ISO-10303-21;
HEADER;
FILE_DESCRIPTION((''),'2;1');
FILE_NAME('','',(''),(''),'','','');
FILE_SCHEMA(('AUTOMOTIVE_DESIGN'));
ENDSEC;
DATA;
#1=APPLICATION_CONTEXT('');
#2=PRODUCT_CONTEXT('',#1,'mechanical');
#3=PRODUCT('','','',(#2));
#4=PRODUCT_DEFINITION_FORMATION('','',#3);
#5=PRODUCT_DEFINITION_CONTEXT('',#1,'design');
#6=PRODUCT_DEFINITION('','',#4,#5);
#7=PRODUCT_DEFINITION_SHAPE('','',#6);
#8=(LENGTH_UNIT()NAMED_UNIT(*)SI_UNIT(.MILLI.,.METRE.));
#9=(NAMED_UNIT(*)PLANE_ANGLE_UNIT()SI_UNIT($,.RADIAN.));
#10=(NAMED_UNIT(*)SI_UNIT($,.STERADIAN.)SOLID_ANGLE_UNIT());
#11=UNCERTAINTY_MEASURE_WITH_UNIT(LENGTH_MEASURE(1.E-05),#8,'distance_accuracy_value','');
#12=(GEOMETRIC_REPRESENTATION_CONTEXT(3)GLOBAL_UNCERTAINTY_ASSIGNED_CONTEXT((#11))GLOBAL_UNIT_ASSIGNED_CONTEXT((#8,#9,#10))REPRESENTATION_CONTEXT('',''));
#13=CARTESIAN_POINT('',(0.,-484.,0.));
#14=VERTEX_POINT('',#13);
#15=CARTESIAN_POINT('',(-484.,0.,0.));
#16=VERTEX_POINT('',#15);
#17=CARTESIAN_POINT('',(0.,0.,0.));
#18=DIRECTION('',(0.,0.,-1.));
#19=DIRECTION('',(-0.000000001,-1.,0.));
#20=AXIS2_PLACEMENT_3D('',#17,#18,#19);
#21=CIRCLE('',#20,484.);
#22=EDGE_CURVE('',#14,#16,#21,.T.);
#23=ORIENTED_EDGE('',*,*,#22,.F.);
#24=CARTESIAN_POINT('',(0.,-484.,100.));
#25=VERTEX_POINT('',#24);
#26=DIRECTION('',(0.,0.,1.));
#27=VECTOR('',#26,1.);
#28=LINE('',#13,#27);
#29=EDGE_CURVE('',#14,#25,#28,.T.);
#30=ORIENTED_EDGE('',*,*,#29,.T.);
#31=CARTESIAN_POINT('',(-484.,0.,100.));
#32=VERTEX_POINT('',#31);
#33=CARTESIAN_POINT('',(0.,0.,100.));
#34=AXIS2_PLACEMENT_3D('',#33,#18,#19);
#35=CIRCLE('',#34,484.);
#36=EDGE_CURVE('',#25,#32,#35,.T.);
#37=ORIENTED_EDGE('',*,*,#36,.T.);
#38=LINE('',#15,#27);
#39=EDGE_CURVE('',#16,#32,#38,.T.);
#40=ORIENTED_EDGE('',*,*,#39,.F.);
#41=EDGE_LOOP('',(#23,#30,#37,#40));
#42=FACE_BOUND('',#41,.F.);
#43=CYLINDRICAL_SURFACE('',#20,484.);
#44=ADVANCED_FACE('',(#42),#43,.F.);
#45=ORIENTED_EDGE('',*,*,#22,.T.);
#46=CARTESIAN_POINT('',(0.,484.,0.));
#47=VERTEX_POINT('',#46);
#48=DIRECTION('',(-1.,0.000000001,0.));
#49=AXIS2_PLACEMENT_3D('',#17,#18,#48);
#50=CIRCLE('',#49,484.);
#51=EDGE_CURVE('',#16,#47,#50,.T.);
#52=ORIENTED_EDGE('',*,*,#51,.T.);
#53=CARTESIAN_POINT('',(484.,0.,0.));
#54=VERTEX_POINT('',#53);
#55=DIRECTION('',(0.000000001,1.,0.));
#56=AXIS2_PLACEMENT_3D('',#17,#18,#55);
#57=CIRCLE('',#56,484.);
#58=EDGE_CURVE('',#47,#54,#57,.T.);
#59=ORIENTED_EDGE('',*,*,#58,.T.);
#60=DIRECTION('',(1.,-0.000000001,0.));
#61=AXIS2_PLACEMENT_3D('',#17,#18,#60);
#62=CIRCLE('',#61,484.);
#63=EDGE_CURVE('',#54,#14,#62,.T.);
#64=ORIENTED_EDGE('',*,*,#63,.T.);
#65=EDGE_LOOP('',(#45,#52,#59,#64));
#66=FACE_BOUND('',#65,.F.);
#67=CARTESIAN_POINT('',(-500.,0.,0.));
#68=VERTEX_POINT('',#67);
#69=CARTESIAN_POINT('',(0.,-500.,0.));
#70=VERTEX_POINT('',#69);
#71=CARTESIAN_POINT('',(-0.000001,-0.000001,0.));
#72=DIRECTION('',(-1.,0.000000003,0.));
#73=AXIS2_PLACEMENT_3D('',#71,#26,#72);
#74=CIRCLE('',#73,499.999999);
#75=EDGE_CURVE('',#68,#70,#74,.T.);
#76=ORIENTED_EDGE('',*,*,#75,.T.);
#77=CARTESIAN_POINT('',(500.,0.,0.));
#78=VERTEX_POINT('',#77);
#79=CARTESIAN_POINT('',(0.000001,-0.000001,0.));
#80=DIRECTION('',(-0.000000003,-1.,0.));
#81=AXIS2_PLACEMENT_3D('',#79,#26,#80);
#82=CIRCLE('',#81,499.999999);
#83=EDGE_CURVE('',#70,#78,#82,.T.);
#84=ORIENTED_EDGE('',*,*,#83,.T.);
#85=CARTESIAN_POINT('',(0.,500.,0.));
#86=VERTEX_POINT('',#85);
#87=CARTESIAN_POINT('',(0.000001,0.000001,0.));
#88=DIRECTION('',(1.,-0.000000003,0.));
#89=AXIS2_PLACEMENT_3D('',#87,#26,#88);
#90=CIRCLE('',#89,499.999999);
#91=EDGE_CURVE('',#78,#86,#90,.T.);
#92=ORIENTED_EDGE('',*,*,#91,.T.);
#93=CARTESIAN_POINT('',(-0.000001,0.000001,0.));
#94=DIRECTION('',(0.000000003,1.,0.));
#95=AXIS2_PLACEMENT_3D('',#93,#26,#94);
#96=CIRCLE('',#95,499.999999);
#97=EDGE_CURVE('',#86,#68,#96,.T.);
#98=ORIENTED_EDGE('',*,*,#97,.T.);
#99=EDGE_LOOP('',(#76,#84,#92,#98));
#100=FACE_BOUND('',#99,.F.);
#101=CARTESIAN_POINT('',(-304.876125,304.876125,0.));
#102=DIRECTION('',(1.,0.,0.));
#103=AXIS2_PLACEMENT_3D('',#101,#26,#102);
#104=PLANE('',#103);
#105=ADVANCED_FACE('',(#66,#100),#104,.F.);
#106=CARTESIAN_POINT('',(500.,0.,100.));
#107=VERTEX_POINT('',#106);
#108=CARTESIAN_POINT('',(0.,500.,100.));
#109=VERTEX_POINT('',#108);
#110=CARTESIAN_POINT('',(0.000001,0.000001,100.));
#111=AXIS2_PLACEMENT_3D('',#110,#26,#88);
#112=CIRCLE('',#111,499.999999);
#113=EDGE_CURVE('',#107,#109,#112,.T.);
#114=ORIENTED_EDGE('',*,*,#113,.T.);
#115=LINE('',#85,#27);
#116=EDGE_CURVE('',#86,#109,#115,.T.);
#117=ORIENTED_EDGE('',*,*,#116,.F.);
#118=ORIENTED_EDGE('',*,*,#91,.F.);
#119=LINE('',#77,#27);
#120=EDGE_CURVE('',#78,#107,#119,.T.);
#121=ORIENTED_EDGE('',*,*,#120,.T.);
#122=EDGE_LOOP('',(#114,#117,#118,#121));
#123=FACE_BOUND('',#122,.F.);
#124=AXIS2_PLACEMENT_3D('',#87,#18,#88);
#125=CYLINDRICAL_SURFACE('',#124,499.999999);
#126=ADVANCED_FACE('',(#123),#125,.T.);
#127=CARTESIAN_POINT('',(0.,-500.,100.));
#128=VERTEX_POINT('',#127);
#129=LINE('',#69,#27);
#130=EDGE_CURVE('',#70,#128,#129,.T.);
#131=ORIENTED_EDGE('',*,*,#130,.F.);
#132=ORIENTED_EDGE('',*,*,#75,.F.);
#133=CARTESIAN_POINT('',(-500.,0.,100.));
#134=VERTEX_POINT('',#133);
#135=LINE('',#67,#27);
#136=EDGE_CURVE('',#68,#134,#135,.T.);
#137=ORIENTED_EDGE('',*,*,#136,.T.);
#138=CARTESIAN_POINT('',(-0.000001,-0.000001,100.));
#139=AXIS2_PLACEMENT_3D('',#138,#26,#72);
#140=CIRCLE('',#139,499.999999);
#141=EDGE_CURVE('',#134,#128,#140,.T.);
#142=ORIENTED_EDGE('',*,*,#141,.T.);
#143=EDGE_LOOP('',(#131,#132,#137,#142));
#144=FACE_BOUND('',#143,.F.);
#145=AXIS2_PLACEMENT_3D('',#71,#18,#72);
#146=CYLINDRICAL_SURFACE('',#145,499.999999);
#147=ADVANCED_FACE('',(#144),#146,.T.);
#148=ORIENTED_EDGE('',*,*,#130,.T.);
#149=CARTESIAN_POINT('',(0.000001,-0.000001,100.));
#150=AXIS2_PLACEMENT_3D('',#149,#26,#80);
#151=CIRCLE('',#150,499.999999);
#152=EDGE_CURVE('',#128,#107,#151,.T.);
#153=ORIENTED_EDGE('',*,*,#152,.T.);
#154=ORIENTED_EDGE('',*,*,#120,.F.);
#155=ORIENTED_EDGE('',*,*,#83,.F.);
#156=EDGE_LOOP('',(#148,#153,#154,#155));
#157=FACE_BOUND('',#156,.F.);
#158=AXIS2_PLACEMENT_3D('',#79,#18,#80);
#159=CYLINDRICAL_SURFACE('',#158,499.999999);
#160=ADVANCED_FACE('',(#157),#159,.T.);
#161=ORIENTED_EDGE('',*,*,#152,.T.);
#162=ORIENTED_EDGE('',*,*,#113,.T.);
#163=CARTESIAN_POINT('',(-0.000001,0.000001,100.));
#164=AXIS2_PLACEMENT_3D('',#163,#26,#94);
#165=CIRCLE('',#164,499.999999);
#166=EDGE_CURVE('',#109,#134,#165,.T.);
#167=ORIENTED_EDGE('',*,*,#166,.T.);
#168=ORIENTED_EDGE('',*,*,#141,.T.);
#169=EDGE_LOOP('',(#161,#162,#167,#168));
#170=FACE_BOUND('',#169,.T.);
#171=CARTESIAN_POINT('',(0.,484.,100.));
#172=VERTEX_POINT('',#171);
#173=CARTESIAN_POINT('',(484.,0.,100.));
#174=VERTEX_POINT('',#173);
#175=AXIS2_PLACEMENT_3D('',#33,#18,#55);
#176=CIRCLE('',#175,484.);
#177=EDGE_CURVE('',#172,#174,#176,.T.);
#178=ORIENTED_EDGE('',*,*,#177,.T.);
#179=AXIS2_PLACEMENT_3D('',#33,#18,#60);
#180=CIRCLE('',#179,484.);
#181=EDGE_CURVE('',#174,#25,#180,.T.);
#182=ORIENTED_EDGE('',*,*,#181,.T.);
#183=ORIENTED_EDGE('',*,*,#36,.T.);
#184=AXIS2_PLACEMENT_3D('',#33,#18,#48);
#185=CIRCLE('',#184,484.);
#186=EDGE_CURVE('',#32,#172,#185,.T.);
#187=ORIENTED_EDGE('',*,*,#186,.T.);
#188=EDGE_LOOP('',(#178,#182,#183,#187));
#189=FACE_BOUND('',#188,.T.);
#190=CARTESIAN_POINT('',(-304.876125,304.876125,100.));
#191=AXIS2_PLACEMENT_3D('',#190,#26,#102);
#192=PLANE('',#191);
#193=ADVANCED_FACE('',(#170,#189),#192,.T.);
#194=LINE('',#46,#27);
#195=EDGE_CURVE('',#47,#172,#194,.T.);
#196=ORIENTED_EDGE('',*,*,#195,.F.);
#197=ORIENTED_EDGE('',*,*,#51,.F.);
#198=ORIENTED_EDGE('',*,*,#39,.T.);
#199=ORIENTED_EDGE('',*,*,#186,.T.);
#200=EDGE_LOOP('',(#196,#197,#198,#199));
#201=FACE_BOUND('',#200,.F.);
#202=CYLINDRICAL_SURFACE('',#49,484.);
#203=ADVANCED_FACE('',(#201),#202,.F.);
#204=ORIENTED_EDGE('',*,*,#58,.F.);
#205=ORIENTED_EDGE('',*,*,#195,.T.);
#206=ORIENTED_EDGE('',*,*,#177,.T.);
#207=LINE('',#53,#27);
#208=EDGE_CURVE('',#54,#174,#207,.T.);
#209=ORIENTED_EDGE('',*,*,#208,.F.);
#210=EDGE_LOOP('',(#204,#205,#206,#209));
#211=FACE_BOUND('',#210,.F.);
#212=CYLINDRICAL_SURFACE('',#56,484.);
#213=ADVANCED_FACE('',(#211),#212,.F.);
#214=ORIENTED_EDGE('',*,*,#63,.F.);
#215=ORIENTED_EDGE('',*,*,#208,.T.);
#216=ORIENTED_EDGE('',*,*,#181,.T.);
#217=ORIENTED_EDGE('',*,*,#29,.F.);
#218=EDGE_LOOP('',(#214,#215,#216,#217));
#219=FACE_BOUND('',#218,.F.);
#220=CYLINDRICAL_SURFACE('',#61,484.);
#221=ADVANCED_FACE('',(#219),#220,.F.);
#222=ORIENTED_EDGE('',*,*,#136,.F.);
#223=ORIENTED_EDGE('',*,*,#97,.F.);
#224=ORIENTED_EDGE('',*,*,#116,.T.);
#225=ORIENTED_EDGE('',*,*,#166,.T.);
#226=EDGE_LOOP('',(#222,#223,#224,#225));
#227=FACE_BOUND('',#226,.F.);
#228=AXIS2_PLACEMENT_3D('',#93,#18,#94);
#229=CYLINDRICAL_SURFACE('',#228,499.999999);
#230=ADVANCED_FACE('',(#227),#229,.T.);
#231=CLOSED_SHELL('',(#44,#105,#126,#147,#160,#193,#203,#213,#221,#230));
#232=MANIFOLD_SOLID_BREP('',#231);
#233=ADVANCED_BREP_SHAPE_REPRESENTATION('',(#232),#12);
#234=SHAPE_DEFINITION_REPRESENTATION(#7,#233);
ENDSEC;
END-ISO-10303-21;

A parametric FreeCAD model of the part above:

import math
import FreeCAD as App
import Part
import Sketcher

doc = App.newDocument("Part")
body = doc.addObject("PartDesign::Body", "Body")

sketch1 = doc.addObject("Sketcher::SketchObject", "Sketch")
body.addObject(sketch1)
sketch1.AttachmentSupport = (doc.XY_Plane, [""])
sketch1.MapMode = "FlatFace"
sketch1.addGeometry(Part.ArcOfCircle(Part.Circle(App.Vector(0, 0, 0), App.Vector(0, 0, 1), 500), math.radians(90), math.radians(180)), False)
sketch1.addGeometry(Part.ArcOfCircle(Part.Circle(App.Vector(0, 0, 0), App.Vector(0, 0, 1), 500), math.radians(180), math.radians(270)), False)
sketch1.addGeometry(Part.ArcOfCircle(Part.Circle(App.Vector(0, 0, 0), App.Vector(0, 0, 1), 500), math.radians(-90), math.radians(0)), False)
sketch1.addGeometry(Part.ArcOfCircle(Part.Circle(App.Vector(0, 0, 0), App.Vector(0, 0, 1), 500), math.radians(0), math.radians(90)), False)
sketch1.addGeometry(Part.ArcOfCircle(Part.Circle(App.Vector(0, 0, 0), App.Vector(0, 0, 1), 484), math.radians(-90), math.radians(0)), False)
sketch1.addGeometry(Part.ArcOfCircle(Part.Circle(App.Vector(0, 0, 0), App.Vector(0, 0, 1), 484), math.radians(-180), math.radians(-90)), False)
sketch1.addGeometry(Part.ArcOfCircle(Part.Circle(App.Vector(0, 0, 0), App.Vector(0, 0, 1), 484), math.radians(90), math.radians(180)), False)
sketch1.addGeometry(Part.ArcOfCircle(Part.Circle(App.Vector(0, 0, 0), App.Vector(0, 0, 1), 484), math.radians(0), math.radians(90)), False)
sketch1.addConstraint(Sketcher.Constraint("Coincident", 0, 2, 1, 1))
sketch1.addConstraint(Sketcher.Constraint("Coincident", 1, 2, 2, 1))
sketch1.addConstraint(Sketcher.Constraint("Coincident", 2, 2, 3, 1))
sketch1.addConstraint(Sketcher.Constraint("Coincident", 3, 2, 0, 1))
sketch1.addConstraint(Sketcher.Constraint("Tangent", 4, 1, 5, 2))
sketch1.addConstraint(Sketcher.Constraint("Coincident", 5, 1, 6, 2))
sketch1.addConstraint(Sketcher.Constraint("Coincident", 6, 1, 7, 2))
sketch1.addConstraint(Sketcher.Constraint("Coincident", 7, 1, 4, 2))
sketch1.addConstraint(Sketcher.Constraint("Coincident", 0, 3, -1, 1))
sketch1.addConstraint(Sketcher.Constraint("Coincident", 1, 3, -1, 1))
sketch1.addConstraint(Sketcher.Constraint("Coincident", 2, 3, -1, 1))
sketch1.addConstraint(Sketcher.Constraint("Coincident", 4, 3, -1, 1))
sketch1.addConstraint(Sketcher.Constraint("Coincident", 6, 3, -1, 1))
sketch1.addConstraint(Sketcher.Constraint("Coincident", 7, 3, -1, 1))
sketch1.addConstraint(Sketcher.Constraint("Equal", 2, 3))
sketch1.addConstraint(Sketcher.Constraint("PointOnObject", 0, 2, -1))
sketch1.addConstraint(Sketcher.Constraint("PointOnObject", 1, 2, -2))
sketch1.addConstraint(Sketcher.Constraint("PointOnObject", 2, 2, -1))
sketch1.addConstraint(Sketcher.Constraint("PointOnObject", 3, 2, -2))
sketch1.addConstraint(Sketcher.Constraint("PointOnObject", 4, 1, -2))
sketch1.addConstraint(Sketcher.Constraint("PointOnObject", 5, 1, -1))
sketch1.addConstraint(Sketcher.Constraint("PointOnObject", 6, 1, -2))
sketch1.addConstraint(Sketcher.Constraint("PointOnObject", 7, 1, -1))
sketch1.addConstraint(Sketcher.Constraint("Radius", 0, 499.999999))
sketch1.addConstraint(Sketcher.Constraint("Radius", 4, 484.0))
pad1 = doc.addObject("PartDesign::Pad", "Pad")
body.addObject(pad1)
pad1.Profile = sketch1
pad1.Length = 100

doc.recompute()
